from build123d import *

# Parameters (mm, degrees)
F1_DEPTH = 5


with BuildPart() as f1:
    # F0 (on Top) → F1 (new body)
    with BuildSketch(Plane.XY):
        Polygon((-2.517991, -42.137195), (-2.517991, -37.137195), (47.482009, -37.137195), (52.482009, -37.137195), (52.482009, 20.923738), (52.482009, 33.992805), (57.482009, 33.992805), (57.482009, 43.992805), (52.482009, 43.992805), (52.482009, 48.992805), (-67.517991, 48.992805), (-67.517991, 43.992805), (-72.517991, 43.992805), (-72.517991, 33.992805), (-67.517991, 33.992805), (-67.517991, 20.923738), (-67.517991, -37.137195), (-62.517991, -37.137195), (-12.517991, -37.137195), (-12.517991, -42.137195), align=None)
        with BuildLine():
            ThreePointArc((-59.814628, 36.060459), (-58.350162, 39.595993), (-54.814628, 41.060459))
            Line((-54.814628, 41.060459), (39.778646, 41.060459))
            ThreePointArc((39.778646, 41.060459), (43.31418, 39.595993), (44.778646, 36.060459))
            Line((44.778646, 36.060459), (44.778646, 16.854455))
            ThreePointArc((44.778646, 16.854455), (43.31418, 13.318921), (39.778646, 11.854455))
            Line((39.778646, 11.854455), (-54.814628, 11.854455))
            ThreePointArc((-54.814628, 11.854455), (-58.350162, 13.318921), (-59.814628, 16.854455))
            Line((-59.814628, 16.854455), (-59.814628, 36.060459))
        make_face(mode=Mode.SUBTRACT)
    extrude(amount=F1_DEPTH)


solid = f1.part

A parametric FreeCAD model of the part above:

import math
import FreeCAD as App
import Part
import Sketcher

doc = App.newDocument("Part")
body = doc.addObject("PartDesign::Body", "Body")

sketch1 = body.newObject("Sketcher::SketchObject", "Sketch")
sketch1.AttachmentSupport = (doc.getObject("XY_Plane"), [""])
sketch1.MapMode = "FlatFace"
sketch1.addGeometry(Part.LineSegment(App.Vector(-2.517991, -42.137195, 0), App.Vector(-2.517991, -37.137195, 0)), False)
sketch1.addGeometry(Part.LineSegment(App.Vector(-2.517991, -37.137195, 0), App.Vector(52.482009, -37.137195, 0)), False)
sketch1.addGeometry(Part.LineSegment(App.Vector(52.482009, -37.137195, 0), App.Vector(52.482009, 33.992805, 0)), False)
sketch1.addGeometry(Part.LineSegment(App.Vector(52.482009, 33.992805, 0), App.Vector(57.482009, 33.992805, 0)), False)
sketch1.addGeometry(Part.LineSegment(App.Vector(57.482009, 33.992805, 0), App.Vector(57.482009, 43.992805, 0)), False)
sketch1.addGeometry(Part.LineSegment(App.Vector(57.482009, 43.992805, 0), App.Vector(52.482009, 43.992805, 0)), False)
sketch1.addGeometry(Part.LineSegment(App.Vector(52.482009, 43.992805, 0), App.Vector(52.482009, 48.992805, 0)), False)
sketch1.addGeometry(Part.LineSegment(App.Vector(52.482009, 48.992805, 0), App.Vector(-67.517991, 48.992805, 0)), False)
sketch1.addGeometry(Part.LineSegment(App.Vector(-67.517991, 48.992805, 0), App.Vector(-67.517991, 43.992805, 0)), False)
sketch1.addGeometry(Part.LineSegment(App.Vector(-67.517991, 43.992805, 0), App.Vector(-72.517991, 43.992805, 0)), False)
sketch1.addGeometry(Part.LineSegment(App.Vector(-72.517991, 43.992805, 0), App.Vector(-72.517991, 33.992805, 0)), False)
sketch1.addGeometry(Part.LineSegment(App.Vector(-72.517991, 33.992805, 0), App.Vector(-67.517991, 33.992805, 0)), False)
sketch1.addGeometry(Part.LineSegment(App.Vector(-67.517991, 33.992805, 0), App.Vector(-67.517991, -37.137195, 0)), False)
sketch1.addGeometry(Part.LineSegment(App.Vector(-67.517991, -37.137195, 0), App.Vector(-12.517991, -37.137195, 0)), False)
sketch1.addGeometry(Part.LineSegment(App.Vector(-12.517991, -37.137195, 0), App.Vector(-12.517991, -42.137195, 0)), False)
sketch1.addGeometry(Part.LineSegment(App.Vector(-12.517991, -42.137195, 0), App.Vector(-2.517991, -42.137195, 0)), False)
sketch1.addGeometry(Part.LineSegment(App.Vector(-59.814628, 16.854455, 0), App.Vector(-59.814628, 36.060459, 0)), False)
sketch1.addGeometry(Part.ArcOfCircle(Part.Circle(App.Vector(-54.814628, 36.060459, 0), App.Vector(0, 0, 1), 5), math.radians(89.999996), math.radians(180.000004)), False)
sketch1.addGeometry(Part.LineSegment(App.Vector(-54.814628, 41.060459, 0), App.Vector(39.778646, 41.060459, 0)), False)
sketch1.addGeometry(Part.ArcOfCircle(Part.Circle(App.Vector(39.778646, 36.060459, 0), App.Vector(0, 0, 1), 5), math.radians(-0.000004), math.radians(90.000004)), False)
sketch1.addGeometry(Part.LineSegment(App.Vector(44.778646, 36.060459, 0), App.Vector(44.778646, 16.854455, 0)), False)
sketch1.addGeometry(Part.ArcOfCircle(Part.Circle(App.Vector(39.778646, 16.854455, 0), App.Vector(0, 0, 1), 5), math.radians(-90.000004), math.radians(0.000004)), False)
sketch1.addGeometry(Part.LineSegment(App.Vector(39.778646, 11.854455, 0), App.Vector(-54.814628, 11.854455, 0)), False)
sketch1.addGeometry(Part.ArcOfCircle(Part.Circle(App.Vector(-54.814628, 16.854455, 0), App.Vector(0, 0, 1), 5), math.radians(179.999996), math.radians(270.000004)), False)
sketch1.addConstraint(Sketcher.Constraint("Coincident", 0, 2, 1, 1))
sketch1.addConstraint(Sketcher.Constraint("Coincident", 1, 2, 2, 1))
sketch1.addConstraint(Sketcher.Constraint("Coincident", 2, 2, 3, 1))
sketch1.addConstraint(Sketcher.Constraint("Coincident", 3, 2, 4, 1))
sketch1.addConstraint(Sketcher.Constraint("Coincident", 4, 2, 5, 1))
sketch1.addConstraint(Sketcher.Constraint("Coincident", 5, 2, 6, 1))
sketch1.addConstraint(Sketcher.Constraint("Coincident", 6, 2, 7, 1))
sketch1.addConstraint(Sketcher.Constraint("Coincident", 7, 2, 8, 1))
sketch1.addConstraint(Sketcher.Constraint("Coincident", 8, 2, 9, 1))
sketch1.addConstraint(Sketcher.Constraint("Coincident", 9, 2, 10, 1))
sketch1.addConstraint(Sketcher.Constraint("Coincident", 10, 2, 11, 1))
sketch1.addConstraint(Sketcher.Constraint("Coincident", 11, 2, 12, 1))
sketch1.addConstraint(Sketcher.Constraint("Coincident", 12, 2, 13, 1))
sketch1.addConstraint(Sketcher.Constraint("Coincident", 13, 2, 14, 1))
sketch1.addConstraint(Sketcher.Constraint("Coincident", 14, 2, 15, 1))
sketch1.addConstraint(Sketcher.Constraint("Coincident", 15, 2, 0, 1))
sketch1.addConstraint(Sketcher.Constraint("Tangent", 16, 2, 17, 2))
sketch1.addConstraint(Sketcher.Constraint("Tangent", 17, 1, 18, 1))
sketch1.addConstraint(Sketcher.Constraint("Tangent", 18, 2, 19, 2))
sketch1.addConstraint(Sketcher.Constraint("Tangent", 19, 1, 20, 1))
sketch1.addConstraint(Sketcher.Constraint("Tangent", 20, 2, 21, 2))
sketch1.addConstraint(Sketcher.Constraint("Tangent", 21, 1, 22, 1))
sketch1.addConstraint(Sketcher.Constraint("Tangent", 22, 2, 23, 2))
sketch1.addConstraint(Sketcher.Constraint("Tangent", 23, 1, 16, 1))
sketch1.addConstraint(Sketcher.Constraint("Vertical", 0))
sketch1.addConstraint(Sketcher.Constraint("Horizontal", 1))
sketch1.addConstraint(Sketcher.Constraint("Vertical", 2))
sketch1.addConstraint(Sketcher.Constraint("Horizontal", 3))
sketch1.addConstraint(Sketcher.Constraint("Vertical", 4))
sketch1.addConstraint(Sketcher.Constraint("Horizontal", 5))
sketch1.addConstraint(Sketcher.Constraint("Vertical", 6))
sketch1.addConstraint(Sketcher.Constraint("Horizontal", 7))
sketch1.addConstraint(Sketcher.Constraint("Vertical", 8))
sketch1.addConstraint(Sketcher.Constraint("Horizontal", 9))
sketch1.addConstraint(Sketcher.Constraint("Vertical", 10))
sketch1.addConstraint(Sketcher.Constraint("Horizontal", 11))
sketch1.addConstraint(Sketcher.Constraint("Vertical", 12))
sketch1.addConstraint(Sketcher.Constraint("Horizontal", 13))
sketch1.addConstraint(Sketcher.Constraint("Vertical", 14))
sketch1.addConstraint(Sketcher.Constraint("Horizontal", 15))
sketch1.addConstraint(Sketcher.Constraint("Vertical", 16))
sketch1.addConstraint(Sketcher.Constraint("Horizontal", 18))
sketch1.addConstraint(Sketcher.Constraint("Vertical", 20))
sketch1.addConstraint(Sketcher.Constraint("Horizontal", 22))
sketch1.addConstraint(Sketcher.Constraint("Equal", 17, 19))
sketch1.addConstraint(Sketcher.Constraint("Equal", 19, 21))
sketch1.addConstraint(Sketcher.Constraint("Equal", 21, 23))
sketch1.addConstraint(Sketcher.Constraint("Horizontal", 5, 2, 8, 2))
sketch1.addConstraint(Sketcher.Constraint("Horizontal", 3, 2, 10, 2))
sketch1.addConstraint(Sketcher.Constraint("Horizontal", 1, 2, 12, 2))
sketch1.addConstraint(Sketcher.Constraint("Vertical", 2, 2, 5, 2))
sketch1.addConstraint(Sketcher.Constraint("Vertical", 8, 2, 11, 2))
sketch1.addConstraint(Sketcher.Constraint("Equal", 5, 9))
sketch1.addConstraint(Sketcher.Constraint("Equal", 1, 13))
sketch1.addConstraint(Sketcher.Constraint("Equal", 11, 0))
sketch1.addConstraint(Sketcher.Constraint("Equal", 15, 4))
sketch1.addConstraint(Sketcher.Constraint("Equal", 0, 6))
sketch1.addConstraint(Sketcher.Constraint("Radius", 17, 5.0))
sketch1.addConstraint(Sketcher.Constraint("DistanceX", 1, 1, 1, 2, 55.0))
sketch1.addConstraint(Sketcher.Constraint("DistanceX", 3, 1, 3, 2, 5.0))
sketch1.addConstraint(Sketcher.Constraint("DistanceX", 7, 2, 7, 1, 120.0))
sketch1.addConstraint(Sketcher.Constraint("DistanceY", 2, 1, 2, 2, 71.13))
sketch1.addConstraint(Sketcher.Constraint("DistanceX", 18, 1, 18, 2, 94.593274))
sketch1.addConstraint(Sketcher.Constraint("DistanceY", 16, 1, 16, 2, 19.206004))
sketch1.addConstraint(Sketcher.Constraint("DistanceX", 17, 3, -1, 1, 54.814628))
sketch1.addConstraint(Sketcher.Constraint("DistanceY", -1, 1, 17, 3, 36.060459))
sketch1.addConstraint(Sketcher.Constraint("DistanceX", 0, 2, -1, 1, 2.517991))
sketch1.addConstraint(Sketcher.Constraint("DistanceY", 0, 2, 21, 3, 53.99165))
pad1 = body.newObject("PartDesign::Pad", "Pad")
pad1.Profile = sketch1
pad1.Length = 5

doc.recompute()
